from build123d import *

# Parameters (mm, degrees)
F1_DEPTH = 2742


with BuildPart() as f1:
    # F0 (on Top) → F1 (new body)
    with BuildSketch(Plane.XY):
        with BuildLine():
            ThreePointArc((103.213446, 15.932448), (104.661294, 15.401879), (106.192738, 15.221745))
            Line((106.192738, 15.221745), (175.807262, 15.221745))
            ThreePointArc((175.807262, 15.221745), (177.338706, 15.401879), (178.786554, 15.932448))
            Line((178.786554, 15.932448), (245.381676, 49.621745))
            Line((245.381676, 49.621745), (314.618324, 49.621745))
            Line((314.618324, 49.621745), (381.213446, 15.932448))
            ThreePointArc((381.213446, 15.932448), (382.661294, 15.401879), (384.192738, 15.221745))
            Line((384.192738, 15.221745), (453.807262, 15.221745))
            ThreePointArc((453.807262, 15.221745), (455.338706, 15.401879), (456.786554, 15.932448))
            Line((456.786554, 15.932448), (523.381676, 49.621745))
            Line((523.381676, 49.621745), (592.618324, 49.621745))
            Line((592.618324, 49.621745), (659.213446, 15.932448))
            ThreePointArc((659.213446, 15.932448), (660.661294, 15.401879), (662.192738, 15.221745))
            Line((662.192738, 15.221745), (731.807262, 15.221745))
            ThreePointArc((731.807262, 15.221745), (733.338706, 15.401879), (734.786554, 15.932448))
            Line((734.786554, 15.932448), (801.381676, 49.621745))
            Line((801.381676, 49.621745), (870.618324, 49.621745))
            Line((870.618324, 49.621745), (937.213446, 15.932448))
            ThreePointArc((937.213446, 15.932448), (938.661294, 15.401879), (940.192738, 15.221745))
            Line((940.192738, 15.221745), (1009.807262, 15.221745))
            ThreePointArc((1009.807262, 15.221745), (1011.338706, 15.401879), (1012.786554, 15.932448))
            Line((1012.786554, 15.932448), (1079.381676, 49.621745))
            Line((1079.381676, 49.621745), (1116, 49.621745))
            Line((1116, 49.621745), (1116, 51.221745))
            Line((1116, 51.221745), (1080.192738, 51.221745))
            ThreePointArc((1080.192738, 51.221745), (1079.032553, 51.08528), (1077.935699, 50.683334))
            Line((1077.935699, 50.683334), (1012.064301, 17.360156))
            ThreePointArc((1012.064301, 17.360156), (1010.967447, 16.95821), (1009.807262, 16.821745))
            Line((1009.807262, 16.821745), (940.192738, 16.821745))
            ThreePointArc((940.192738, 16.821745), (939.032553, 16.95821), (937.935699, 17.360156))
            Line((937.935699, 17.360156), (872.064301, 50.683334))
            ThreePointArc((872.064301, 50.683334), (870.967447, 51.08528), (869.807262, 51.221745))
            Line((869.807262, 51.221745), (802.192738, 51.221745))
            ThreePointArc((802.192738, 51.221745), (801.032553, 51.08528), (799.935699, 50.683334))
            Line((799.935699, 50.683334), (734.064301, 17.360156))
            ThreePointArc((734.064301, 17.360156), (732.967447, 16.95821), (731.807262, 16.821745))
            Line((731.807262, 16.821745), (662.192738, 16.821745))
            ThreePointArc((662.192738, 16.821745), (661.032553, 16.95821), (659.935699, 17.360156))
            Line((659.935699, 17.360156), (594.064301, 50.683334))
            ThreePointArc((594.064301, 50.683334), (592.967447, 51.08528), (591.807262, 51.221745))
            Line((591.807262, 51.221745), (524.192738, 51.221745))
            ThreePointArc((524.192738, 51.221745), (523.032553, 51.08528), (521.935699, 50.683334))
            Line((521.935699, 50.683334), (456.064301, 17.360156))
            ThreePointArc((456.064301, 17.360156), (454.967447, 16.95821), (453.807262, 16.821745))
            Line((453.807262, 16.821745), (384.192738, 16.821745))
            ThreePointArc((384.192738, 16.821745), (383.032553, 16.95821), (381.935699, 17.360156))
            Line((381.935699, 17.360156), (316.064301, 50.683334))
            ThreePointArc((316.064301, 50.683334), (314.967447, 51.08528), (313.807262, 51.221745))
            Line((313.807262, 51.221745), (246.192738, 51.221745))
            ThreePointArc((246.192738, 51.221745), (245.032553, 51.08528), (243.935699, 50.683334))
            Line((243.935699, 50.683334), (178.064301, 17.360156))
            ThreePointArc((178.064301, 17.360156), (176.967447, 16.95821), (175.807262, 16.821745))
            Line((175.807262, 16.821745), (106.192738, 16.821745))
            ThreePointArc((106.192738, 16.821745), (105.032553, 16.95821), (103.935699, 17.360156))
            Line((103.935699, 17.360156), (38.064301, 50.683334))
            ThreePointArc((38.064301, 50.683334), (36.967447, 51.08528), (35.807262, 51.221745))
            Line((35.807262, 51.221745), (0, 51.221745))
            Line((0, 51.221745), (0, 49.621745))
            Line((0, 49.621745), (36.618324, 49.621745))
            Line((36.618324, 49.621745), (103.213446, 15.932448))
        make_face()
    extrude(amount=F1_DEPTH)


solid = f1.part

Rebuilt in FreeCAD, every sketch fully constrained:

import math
import FreeCAD as App
import Part
import Sketcher

V = App.Vector
Q = App.Units.Quantity

doc = App.newDocument("Part")
body = doc.addObject("PartDesign::Body", "Body")

sketch1 = body.newObject("Sketcher::SketchObject", "Sketch")
sketch1.AttachmentSupport = (doc.getObject("XY_Plane"), [""])
sketch1.MapMode = "FlatFace"
sketch1.addGeometry([
    Part.ArcOfCircle(Part.Circle(V(106.192738, 21.821744, 0), V(0, 0, 1), 6.599999), math.radians(-116.834049), math.radians(-89.999999)),
    Part.LineSegment(V(106.192738, 15.221745, 0), V(175.807262, 15.221745, 0)),
    Part.ArcOfCircle(Part.Circle(V(175.807262, 21.821744, 0), V(0, 0, 1), 6.599999), math.radians(-90.000001), math.radians(-63.165951)),
    Part.LineSegment(V(178.786554, 15.932448, 0), V(245.381676, 49.621745, 0)),
    Part.LineSegment(V(245.381676, 49.621745, 0), V(314.618324, 49.621745, 0)),
    Part.LineSegment(V(314.618324, 49.621745, 0), V(381.213446, 15.932448, 0)),
    Part.ArcOfCircle(Part.Circle(V(384.192738, 21.821744, 0), V(0, 0, 1), 6.599999), math.radians(-116.834049), math.radians(-89.999999)),
    Part.LineSegment(V(384.192738, 15.221745, 0), V(453.807262, 15.221745, 0)),
    Part.ArcOfCircle(Part.Circle(V(453.807262, 21.821744, 0), V(0, 0, 1), 6.599999), math.radians(-90.000001), math.radians(-63.165951)),
    Part.LineSegment(V(456.786554, 15.932448, 0), V(523.381676, 49.621745, 0)),
    Part.LineSegment(V(523.381676, 49.621745, 0), V(592.618324, 49.621745, 0)),
    Part.LineSegment(V(592.618324, 49.621745, 0), V(659.213446, 15.932448, 0)),
    Part.ArcOfCircle(Part.Circle(V(662.192738, 21.821744, 0), V(0, 0, 1), 6.599999), math.radians(-116.834049), math.radians(-89.999999)),
    Part.LineSegment(V(662.192738, 15.221745, 0), V(731.807262, 15.221745, 0)),
    Part.ArcOfCircle(Part.Circle(V(731.807262, 21.821744, 0), V(0, 0, 1), 6.599999), math.radians(-90.000001), math.radians(-63.165951)),
    Part.LineSegment(V(734.786554, 15.932448, 0), V(801.381676, 49.621745, 0)),
    Part.LineSegment(V(801.381676, 49.621745, 0), V(870.618324, 49.621745, 0)),
    Part.LineSegment(V(870.618324, 49.621745, 0), V(937.213446, 15.932448, 0)),
    Part.ArcOfCircle(Part.Circle(V(940.192738, 21.821744, 0), V(0, 0, 1), 6.599999), math.radians(-116.834049), math.radians(-89.999999)),
    Part.LineSegment(V(940.192738, 15.221745, 0), V(1009.807262, 15.221745, 0)),
    Part.ArcOfCircle(Part.Circle(V(1009.807262, 21.821744, 0), V(0, 0, 1), 6.599999), math.radians(-90.000001), math.radians(-63.165951)),
    Part.LineSegment(V(1012.786554, 15.932448, 0), V(1079.381676, 49.621745, 0)),
    Part.LineSegment(V(1079.381676, 49.621745, 0), V(1116, 49.621745, 0)),
    Part.LineSegment(V(1116, 49.621745, 0), V(1116, 51.221745, 0)),
    Part.LineSegment(V(1116, 51.221745, 0), V(1080.192738, 51.221745, 0)),
    Part.ArcOfCircle(Part.Circle(V(1080.192737, 46.221749, 0), V(0, 0, 1), 4.999996), math.radians(89.999985), math.radians(116.83405)),
    Part.LineSegment(V(1077.935699, 50.683334, 0), V(1012.064301, 17.360156, 0)),
    Part.ArcOfCircle(Part.Circle(V(1009.807263, 21.821741, 0), V(0, 0, 1), 4.999996), math.radians(-90.000015), math.radians(-63.16595)),
    Part.LineSegment(V(1009.807262, 16.821745, 0), V(940.192738, 16.821745, 0)),
    Part.ArcOfCircle(Part.Circle(V(940.192737, 21.821741, 0), V(0, 0, 1), 4.999996), math.radians(-116.83405), math.radians(-89.999985)),
    Part.LineSegment(V(937.935699, 17.360156, 0), V(872.064301, 50.683334, 0)),
    Part.ArcOfCircle(Part.Circle(V(869.807263, 46.221749, 0), V(0, 0, 1), 4.999996), math.radians(63.16595), math.radians(90.000015)),
    Part.LineSegment(V(869.807262, 51.221745, 0), V(802.192738, 51.221745, 0)),
    Part.ArcOfCircle(Part.Circle(V(802.192737, 46.221749, 0), V(0, 0, 1), 4.999996), math.radians(89.999985), math.radians(116.83405)),
    Part.LineSegment(V(799.935699, 50.683334, 0), V(734.064301, 17.360156, 0)),
    Part.ArcOfCircle(Part.Circle(V(731.807263, 21.821741, 0), V(0, 0, 1), 4.999996), math.radians(-90.000015), math.radians(-63.16595)),
    Part.LineSegment(V(731.807262, 16.821745, 0), V(662.192738, 16.821745, 0)),
    Part.ArcOfCircle(Part.Circle(V(662.192737, 21.821741, 0), V(0, 0, 1), 4.999996), math.radians(-116.83405), math.radians(-89.999985)),
    Part.LineSegment(V(659.935699, 17.360156, 0), V(594.064301, 50.683334, 0)),
    Part.ArcOfCircle(Part.Circle(V(591.807263, 46.221749, 0), V(0, 0, 1), 4.999996), math.radians(63.16595), math.radians(90.000015)),
    Part.LineSegment(V(591.807262, 51.221745, 0), V(524.192738, 51.221745, 0)),
    Part.ArcOfCircle(Part.Circle(V(524.192737, 46.221749, 0), V(0, 0, 1), 4.999996), math.radians(89.999985), math.radians(116.83405)),
    Part.LineSegment(V(521.935699, 50.683334, 0), V(456.064301, 17.360156, 0)),
    Part.ArcOfCircle(Part.Circle(V(453.807263, 21.821741, 0), V(0, 0, 1), 4.999996), math.radians(-90.000015), math.radians(-63.16595)),
    Part.LineSegment(V(453.807262, 16.821745, 0), V(384.192738, 16.821745, 0)),
    Part.ArcOfCircle(Part.Circle(V(384.192737, 21.821741, 0), V(0, 0, 1), 4.999996), math.radians(-116.83405), math.radians(-89.999985)),
    Part.LineSegment(V(381.935699, 17.360156, 0), V(316.064301, 50.683334, 0)),
    Part.ArcOfCircle(Part.Circle(V(313.807263, 46.221749, 0), V(0, 0, 1), 4.999996), math.radians(63.16595), math.radians(90.000015)),
    Part.LineSegment(V(313.807262, 51.221745, 0), V(246.192738, 51.221745, 0)),
    Part.ArcOfCircle(Part.Circle(V(246.192737, 46.221749, 0), V(0, 0, 1), 4.999996), math.radians(89.999985), math.radians(116.83405)),
    Part.LineSegment(V(243.935699, 50.683334, 0), V(178.064301, 17.360156, 0)),
    Part.ArcOfCircle(Part.Circle(V(175.807263, 21.821741, 0), V(0, 0, 1), 4.999996), math.radians(-90.000015), math.radians(-63.16595)),
    Part.LineSegment(V(175.807262, 16.821745, 0), V(106.192738, 16.821745, 0)),
    Part.ArcOfCircle(Part.Circle(V(106.192737, 21.821741, 0), V(0, 0, 1), 4.999996), math.radians(-116.83405), math.radians(-89.999985)),
    Part.LineSegment(V(103.935699, 17.360156, 0), V(38.064301, 50.683334, 0)),
    Part.ArcOfCircle(Part.Circle(V(35.807263, 46.221749, 0), V(0, 0, 1), 4.999996), math.radians(63.16595), math.radians(90.000015)),
    Part.LineSegment(V(35.807262, 51.221745, 0), V(0, 51.221745, 0)),
    Part.LineSegment(V(0, 51.221745, 0), V(0, 49.621745, 0)),
    Part.LineSegment(V(0, 49.621745, 0), V(36.618324, 49.621745, 0)),
    Part.LineSegment(V(36.618324, 49.621745, 0), V(103.213446, 15.932448, 0)),
], False)
sketch1.addConstraint([
    Sketcher.Constraint("Coincident", 0, 2, 1, 1),
    Sketcher.Constraint("Coincident", 1, 2, 2, 1),
    Sketcher.Constraint("Coincident", 2, 2, 3, 1),
    Sketcher.Constraint("Coincident", 3, 2, 4, 1),
    Sketcher.Constraint("Coincident", 4, 2, 5, 1),
    Sketcher.Constraint("Coincident", 5, 2, 6, 1),
    Sketcher.Constraint("Coincident", 6, 2, 7, 1),
    Sketcher.Constraint("Coincident", 7, 2, 8, 1),
    Sketcher.Constraint("Coincident", 8, 2, 9, 1),
    Sketcher.Constraint("Coincident", 9, 2, 10, 1),
    Sketcher.Constraint("Coincident", 10, 2, 11, 1),
    Sketcher.Constraint("Coincident", 11, 2, 12, 1),
    Sketcher.Constraint("Coincident", 12, 2, 13, 1),
    Sketcher.Constraint("Coincident", 13, 2, 14, 1),
    Sketcher.Constraint("Coincident", 14, 2, 15, 1),
    Sketcher.Constraint("Coincident", 15, 2, 16, 1),
    Sketcher.Constraint("Coincident", 16, 2, 17, 1),
    Sketcher.Constraint("Coincident", 17, 2, 18, 1),
    Sketcher.Constraint("Coincident", 18, 2, 19, 1),
    Sketcher.Constraint("Coincident", 19, 2, 20, 1),
    Sketcher.Constraint("Coincident", 20, 2, 21, 1),
    Sketcher.Constraint("Coincident", 21, 2, 22, 1),
    Sketcher.Constraint("Coincident", 22, 2, 23, 1),
    Sketcher.Constraint("Coincident", 23, 2, 24, 1),
    Sketcher.Constraint("Coincident", 24, 2, 25, 1),
    Sketcher.Constraint("Coincident", 25, 2, 26, 1),
    Sketcher.Constraint("Coincident", 26, 2, 27, 2),
    Sketcher.Constraint("Coincident", 27, 1, 28, 1),
    Sketcher.Constraint("Coincident", 28, 2, 29, 2),
    Sketcher.Constraint("Coincident", 29, 1, 30, 1),
    Sketcher.Constraint("Coincident", 30, 2, 31, 1),
    Sketcher.Constraint("Coincident", 31, 2, 32, 1),
    Sketcher.Constraint("Coincident", 32, 2, 33, 1),
    Sketcher.Constraint("Coincident", 33, 2, 34, 1),
    Sketcher.Constraint("Coincident", 34, 2, 35, 2),
    Sketcher.Constraint("Coincident", 35, 1, 36, 1),
    Sketcher.Constraint("Coincident", 36, 2, 37, 2),
    Sketcher.Constraint("Coincident", 37, 1, 38, 1),
    Sketcher.Constraint("Coincident", 38, 2, 39, 1),
    Sketcher.Constraint("Coincident", 39, 2, 40, 1),
    Sketcher.Constraint("Coincident", 40, 2, 41, 1),
    Sketcher.Constraint("Coincident", 41, 2, 42, 1),
    Sketcher.Constraint("Coincident", 42, 2, 43, 2),
    Sketcher.Constraint("Coincident", 43, 1, 44, 1),
    Sketcher.Constraint("Coincident", 44, 2, 45, 2),
    Sketcher.Constraint("Coincident", 45, 1, 46, 1),
    Sketcher.Constraint("Coincident", 46, 2, 47, 1),
    Sketcher.Constraint("Coincident", 47, 2, 48, 1),
    Sketcher.Constraint("Coincident", 48, 2, 49, 1),
    Sketcher.Constraint("Coincident", 49, 2, 50, 1),
    Sketcher.Constraint("Coincident", 50, 2, 51, 2),
    Sketcher.Constraint("Coincident", 51, 1, 52, 1),
    Sketcher.Constraint("Coincident", 52, 2, 53, 2),
    Sketcher.Constraint("Coincident", 53, 1, 54, 1),
    Sketcher.Constraint("Coincident", 54, 2, 55, 1),
    Sketcher.Constraint("Coincident", 55, 2, 56, 1),
    Sketcher.Constraint("Coincident", 56, 2, 57, 1),
    Sketcher.Constraint("Coincident", 57, 2, 58, 1),
    Sketcher.Constraint("Coincident", 58, 2, 59, 1),
    Sketcher.Constraint("Coincident", 59, 2, 0, 1),
    Sketcher.Constraint("Horizontal", 1),
    Sketcher.Constraint("Horizontal", 4),
    Sketcher.Constraint("Horizontal", 7),
    Sketcher.Constraint("Horizontal", 10),
    Sketcher.Constraint("Horizontal", 13),
    Sketcher.Constraint("Horizontal", 16),
    Sketcher.Constraint("Horizontal", 19),
    Sketcher.Constraint("Horizontal", 22),
    Sketcher.Constraint("Vertical", 23),
    Sketcher.Constraint("Horizontal", 24),
    Sketcher.Constraint("Horizontal", 28),
    Sketcher.Constraint("Horizontal", 32),
    Sketcher.Constraint("Horizontal", 36),
    Sketcher.Constraint("Horizontal", 40),
    Sketcher.Constraint("Horizontal", 44),
    Sketcher.Constraint("Horizontal", 48),
    Sketcher.Constraint("Horizontal", 52),
    Sketcher.Constraint("Horizontal", 56),
    Sketcher.Constraint("Vertical", 57),
    Sketcher.Constraint("Horizontal", 58),
    Sketcher.Constraint("Coincident", 27, 3, 20, 3),
    Sketcher.Constraint("Coincident", 29, 3, 18, 3),
    Sketcher.Constraint("Coincident", 35, 3, 14, 3),
    Sketcher.Constraint("Coincident", 37, 3, 12, 3),
    Sketcher.Constraint("Coincident", 43, 3, 8, 3),
    Sketcher.Constraint("Coincident", 45, 3, 6, 3),
    Sketcher.Constraint("Coincident", 51, 3, 2, 3),
    Sketcher.Constraint("Coincident", 53, 3, 0, 3),
    Sketcher.Constraint("PointOnObject", 56, 2, -2),
    Sketcher.Constraint("Radius", 0, Q("6.599999 mm")),
    Sketcher.Constraint("Radius", 2, Q("6.599999 mm")),
    Sketcher.Constraint("Radius", 6, Q("6.599999 mm")),
    Sketcher.Constraint("Radius", 8, Q("6.599999 mm")),
    Sketcher.Constraint("Radius", 12, Q("6.599999 mm")),
    Sketcher.Constraint("Radius", 14, Q("6.599999 mm")),
    Sketcher.Constraint("Radius", 18, Q("6.599999 mm")),
    Sketcher.Constraint("Radius", 20, Q("6.599999 mm")),
    Sketcher.Constraint("DistanceY", 23, 1, 23, 2, Q("1.6 mm")),
    Sketcher.Constraint("DistanceY", 57, 2, 57, 1, Q("1.6 mm")),
    Sketcher.Constraint("DistanceX", -1, 1, 22, 2, Q("1116 mm")),
    Sketcher.Constraint("Radius", 25, Q("4.999996 mm")),
    Sketcher.Constraint("Radius", 27, Q("4.999996 mm")),
    Sketcher.Constraint("Radius", 31, Q("4.999996 mm")),
    Sketcher.Constraint("Radius", 33, Q("4.999996 mm")),
    Sketcher.Constraint("Radius", 35, Q("4.999996 mm")),
    Sketcher.Constraint("Radius", 39, Q("4.999996 mm")),
    Sketcher.Constraint("Radius", 41, Q("4.999996 mm")),
    Sketcher.Constraint("Radius", 43, Q("4.999996 mm")),
    Sketcher.Constraint("Radius", 47, Q("4.999996 mm")),
    Sketcher.Constraint("Radius", 49, Q("4.999996 mm")),
    Sketcher.Constraint("Radius", 51, Q("4.999996 mm")),
    Sketcher.Constraint("Radius", 55, Q("4.999996 mm")),
    Sketcher.Constraint("DistanceX", 10, 1, 10, 2, Q("69.236648 mm")),
    Sketcher.Constraint("DistanceX", 16, 1, 16, 2, Q("69.236648 mm")),
    Sketcher.Constraint("DistanceX", -1, 1, 25, 2, Q("1077.935699 mm")),
    Sketcher.Constraint("DistanceX", -1, 1, 26, 2, Q("1012.064301 mm")),
    Sketcher.Constraint("DistanceX", -1, 1, 29, 1, Q("937.935699 mm")),
    Sketcher.Constraint("DistanceX", -1, 1, 30, 2, Q("872.064301 mm")),
    Sketcher.Constraint("DistanceX", -1, 1, 33, 2, Q("799.935699 mm")),
    Sketcher.Constraint("DistanceX", -1, 1, 34, 2, Q("734.064301 mm")),
    Sketcher.Constraint("DistanceX", -1, 1, 37, 1, Q("659.935699 mm")),
    Sketcher.Constraint("DistanceX", -1, 1, 38, 2, Q("594.064301 mm")),
    Sketcher.Constraint("DistanceX", -1, 1, 41, 2, Q("521.935699 mm")),
    Sketcher.Constraint("DistanceX", -1, 1, 42, 2, Q("456.064301 mm")),
    Sketcher.Constraint("DistanceX", -1, 1, 45, 1, Q("381.935699 mm")),
    Sketcher.Constraint("DistanceX", -1, 1, 46, 2, Q("316.064301 mm")),
    Sketcher.Constraint("DistanceX", -1, 1, 49, 2, Q("243.935699 mm")),
    Sketcher.Constraint("DistanceX", -1, 1, 50, 2, Q("178.064301 mm")),
    Sketcher.Constraint("DistanceX", -1, 1, 53, 1, Q("103.935699 mm")),
    Sketcher.Constraint("DistanceX", -1, 1, 54, 2, Q("38.064301 mm")),
    Sketcher.Constraint("Distance", 26, Q("73.820561 mm")),
    Sketcher.Constraint("Distance", 30, Q("73.820561 mm")),
    Sketcher.Constraint("Distance", 34, Q("73.820561 mm")),
    Sketcher.Constraint("Distance", 38, Q("73.820561 mm")),
    Sketcher.Constraint("Distance", 42, Q("73.820561 mm")),
    Sketcher.Constraint("Distance", 46, Q("73.820561 mm")),
    Sketcher.Constraint("Distance", 50, Q("73.820561 mm")),
    Sketcher.Constraint("Distance", 54, Q("73.820561 mm")),
    Sketcher.Constraint("DistanceX", 1, 1, 1, 2, Q("69.614524 mm")),
    Sketcher.Constraint("DistanceX", 4, 1, 4, 2, Q("69.236648 mm")),
    Sketcher.Constraint("DistanceX", 7, 1, 7, 2, Q("69.614524 mm")),
    Sketcher.Constraint("DistanceX", 13, 1, 13, 2, Q("69.614524 mm")),
    Sketcher.Constraint("DistanceX", 19, 1, 19, 2, Q("69.614524 mm")),
    Sketcher.Constraint("DistanceX", 22, 1, 22, 2, Q("36.618324 mm")),
    Sketcher.Constraint("DistanceX", 24, 2, 24, 1, Q("35.807262 mm")),
    Sketcher.Constraint("DistanceX", 28, 2, 28, 1, Q("69.614524 mm")),
    Sketcher.Constraint("DistanceX", 32, 2, 32, 1, Q("67.614524 mm")),
    Sketcher.Constraint("DistanceX", 36, 2, 36, 1, Q("69.614524 mm")),
    Sketcher.Constraint("DistanceX", 40, 2, 40, 1, Q("67.614524 mm")),
    Sketcher.Constraint("DistanceX", 44, 2, 44, 1, Q("69.614524 mm")),
    Sketcher.Constraint("DistanceX", 48, 2, 48, 1, Q("67.614524 mm")),
    Sketcher.Constraint("DistanceX", 52, 2, 52, 1, Q("69.614524 mm")),
    Sketcher.Constraint("DistanceX", 56, 2, 56, 1, Q("35.807262 mm")),
    Sketcher.Constraint("DistanceX", 58, 1, 58, 2, Q("36.618324 mm")),
    Sketcher.Constraint("DistanceY", -1, 1, 25, 3, Q("46.221749 mm")),
    Sketcher.Constraint("DistanceY", -1, 1, 27, 3, Q("21.821741 mm")),
    Sketcher.Constraint("DistanceY", -1, 1, 31, 3, Q("46.221749 mm")),
    Sketcher.Constraint("DistanceY", -1, 1, 35, 3, Q("21.821741 mm")),
    Sketcher.Constraint("DistanceY", -1, 1, 39, 3, Q("46.221749 mm")),
    Sketcher.Constraint("DistanceY", -1, 1, 43, 3, Q("21.821741 mm")),
    Sketcher.Constraint("DistanceY", -1, 1, 47, 3, Q("46.221749 mm")),
    Sketcher.Constraint("DistanceY", -1, 1, 51, 3, Q("21.821741 mm")),
    Sketcher.Constraint("DistanceY", -1, 1, 55, 3, Q("46.221749 mm")),
    Sketcher.Constraint("DistanceX", -1, 1, 0, 2, Q("106.192738 mm")),
    Sketcher.Constraint("DistanceY", -1, 1, 5, 2, Q("15.932448 mm")),
    Sketcher.Constraint("DistanceX", -1, 1, 6, 2, Q("384.192738 mm")),
    Sketcher.Constraint("DistanceY", -1, 1, 11, 2, Q("15.932448 mm")),
    Sketcher.Constraint("DistanceX", -1, 1, 12, 2, Q("662.192738 mm")),
    Sketcher.Constraint("DistanceY", -1, 1, 17, 2, Q("15.932448 mm")),
    Sketcher.Constraint("DistanceX", -1, 1, 18, 2, Q("940.192738 mm")),
    Sketcher.Constraint("DistanceX", -1, 1, 27, 1, Q("1009.807262 mm")),
    Sketcher.Constraint("DistanceX", -1, 1, 31, 2, Q("869.807262 mm")),
    Sketcher.Constraint("DistanceX", -1, 1, 35, 1, Q("731.807262 mm")),
    Sketcher.Constraint("DistanceX", -1, 1, 39, 2, Q("591.807262 mm")),
    Sketcher.Constraint("DistanceX", -1, 1, 43, 1, Q("453.807262 mm")),
    Sketcher.Constraint("DistanceX", -1, 1, 47, 2, Q("313.807262 mm")),
    Sketcher.Constraint("DistanceX", -1, 1, 51, 1, Q("175.807262 mm")),
    Sketcher.Constraint("DistanceY", -1, 1, 59, 2, Q("15.932448 mm")),
    Sketcher.Constraint("Distance", 3, Q("74.631622 mm")),
    Sketcher.Constraint("Distance", 5, Q("74.631622 mm")),
    Sketcher.Constraint("Distance", 9, Q("74.631622 mm")),
    Sketcher.Constraint("Distance", 11, Q("74.631622 mm")),
    Sketcher.Constraint("Distance", 15, Q("74.631622 mm")),
    Sketcher.Constraint("Distance", 17, Q("74.631622 mm")),
    Sketcher.Constraint("Distance", 21, Q("74.631622 mm")),
    Sketcher.Constraint("Distance", 59, Q("74.631622 mm")),
    Sketcher.Constraint("DistanceX", -1, 1, 2, 3, Q("175.807262 mm")),
    Sketcher.Constraint("DistanceX", -1, 1, 6, 3, Q("384.192738 mm")),
    Sketcher.Constraint("DistanceX", -1, 1, 8, 3, Q("453.807262 mm")),
    Sketcher.Constraint("DistanceX", -1, 1, 12, 3, Q("662.192738 mm")),
    Sketcher.Constraint("DistanceX", -1, 1, 14, 3, Q("731.807262 mm")),
    Sketcher.Constraint("DistanceX", -1, 1, 18, 3, Q("940.192738 mm")),
    Sketcher.Constraint("DistanceX", -1, 1, 20, 3, Q("1009.807262 mm")),
    Sketcher.Constraint("DistanceX", -1, 1, 2, 2, Q("178.786554 mm")),
    Sketcher.Constraint("DistanceX", -1, 1, 8, 2, Q("456.786554 mm")),
    Sketcher.Constraint("DistanceX", -1, 1, 14, 2, Q("734.786554 mm")),
])
pad1 = body.newObject("PartDesign::Pad", "Pad")
pad1.Profile = sketch1
pad1.Length = 2742

doc.recompute()
